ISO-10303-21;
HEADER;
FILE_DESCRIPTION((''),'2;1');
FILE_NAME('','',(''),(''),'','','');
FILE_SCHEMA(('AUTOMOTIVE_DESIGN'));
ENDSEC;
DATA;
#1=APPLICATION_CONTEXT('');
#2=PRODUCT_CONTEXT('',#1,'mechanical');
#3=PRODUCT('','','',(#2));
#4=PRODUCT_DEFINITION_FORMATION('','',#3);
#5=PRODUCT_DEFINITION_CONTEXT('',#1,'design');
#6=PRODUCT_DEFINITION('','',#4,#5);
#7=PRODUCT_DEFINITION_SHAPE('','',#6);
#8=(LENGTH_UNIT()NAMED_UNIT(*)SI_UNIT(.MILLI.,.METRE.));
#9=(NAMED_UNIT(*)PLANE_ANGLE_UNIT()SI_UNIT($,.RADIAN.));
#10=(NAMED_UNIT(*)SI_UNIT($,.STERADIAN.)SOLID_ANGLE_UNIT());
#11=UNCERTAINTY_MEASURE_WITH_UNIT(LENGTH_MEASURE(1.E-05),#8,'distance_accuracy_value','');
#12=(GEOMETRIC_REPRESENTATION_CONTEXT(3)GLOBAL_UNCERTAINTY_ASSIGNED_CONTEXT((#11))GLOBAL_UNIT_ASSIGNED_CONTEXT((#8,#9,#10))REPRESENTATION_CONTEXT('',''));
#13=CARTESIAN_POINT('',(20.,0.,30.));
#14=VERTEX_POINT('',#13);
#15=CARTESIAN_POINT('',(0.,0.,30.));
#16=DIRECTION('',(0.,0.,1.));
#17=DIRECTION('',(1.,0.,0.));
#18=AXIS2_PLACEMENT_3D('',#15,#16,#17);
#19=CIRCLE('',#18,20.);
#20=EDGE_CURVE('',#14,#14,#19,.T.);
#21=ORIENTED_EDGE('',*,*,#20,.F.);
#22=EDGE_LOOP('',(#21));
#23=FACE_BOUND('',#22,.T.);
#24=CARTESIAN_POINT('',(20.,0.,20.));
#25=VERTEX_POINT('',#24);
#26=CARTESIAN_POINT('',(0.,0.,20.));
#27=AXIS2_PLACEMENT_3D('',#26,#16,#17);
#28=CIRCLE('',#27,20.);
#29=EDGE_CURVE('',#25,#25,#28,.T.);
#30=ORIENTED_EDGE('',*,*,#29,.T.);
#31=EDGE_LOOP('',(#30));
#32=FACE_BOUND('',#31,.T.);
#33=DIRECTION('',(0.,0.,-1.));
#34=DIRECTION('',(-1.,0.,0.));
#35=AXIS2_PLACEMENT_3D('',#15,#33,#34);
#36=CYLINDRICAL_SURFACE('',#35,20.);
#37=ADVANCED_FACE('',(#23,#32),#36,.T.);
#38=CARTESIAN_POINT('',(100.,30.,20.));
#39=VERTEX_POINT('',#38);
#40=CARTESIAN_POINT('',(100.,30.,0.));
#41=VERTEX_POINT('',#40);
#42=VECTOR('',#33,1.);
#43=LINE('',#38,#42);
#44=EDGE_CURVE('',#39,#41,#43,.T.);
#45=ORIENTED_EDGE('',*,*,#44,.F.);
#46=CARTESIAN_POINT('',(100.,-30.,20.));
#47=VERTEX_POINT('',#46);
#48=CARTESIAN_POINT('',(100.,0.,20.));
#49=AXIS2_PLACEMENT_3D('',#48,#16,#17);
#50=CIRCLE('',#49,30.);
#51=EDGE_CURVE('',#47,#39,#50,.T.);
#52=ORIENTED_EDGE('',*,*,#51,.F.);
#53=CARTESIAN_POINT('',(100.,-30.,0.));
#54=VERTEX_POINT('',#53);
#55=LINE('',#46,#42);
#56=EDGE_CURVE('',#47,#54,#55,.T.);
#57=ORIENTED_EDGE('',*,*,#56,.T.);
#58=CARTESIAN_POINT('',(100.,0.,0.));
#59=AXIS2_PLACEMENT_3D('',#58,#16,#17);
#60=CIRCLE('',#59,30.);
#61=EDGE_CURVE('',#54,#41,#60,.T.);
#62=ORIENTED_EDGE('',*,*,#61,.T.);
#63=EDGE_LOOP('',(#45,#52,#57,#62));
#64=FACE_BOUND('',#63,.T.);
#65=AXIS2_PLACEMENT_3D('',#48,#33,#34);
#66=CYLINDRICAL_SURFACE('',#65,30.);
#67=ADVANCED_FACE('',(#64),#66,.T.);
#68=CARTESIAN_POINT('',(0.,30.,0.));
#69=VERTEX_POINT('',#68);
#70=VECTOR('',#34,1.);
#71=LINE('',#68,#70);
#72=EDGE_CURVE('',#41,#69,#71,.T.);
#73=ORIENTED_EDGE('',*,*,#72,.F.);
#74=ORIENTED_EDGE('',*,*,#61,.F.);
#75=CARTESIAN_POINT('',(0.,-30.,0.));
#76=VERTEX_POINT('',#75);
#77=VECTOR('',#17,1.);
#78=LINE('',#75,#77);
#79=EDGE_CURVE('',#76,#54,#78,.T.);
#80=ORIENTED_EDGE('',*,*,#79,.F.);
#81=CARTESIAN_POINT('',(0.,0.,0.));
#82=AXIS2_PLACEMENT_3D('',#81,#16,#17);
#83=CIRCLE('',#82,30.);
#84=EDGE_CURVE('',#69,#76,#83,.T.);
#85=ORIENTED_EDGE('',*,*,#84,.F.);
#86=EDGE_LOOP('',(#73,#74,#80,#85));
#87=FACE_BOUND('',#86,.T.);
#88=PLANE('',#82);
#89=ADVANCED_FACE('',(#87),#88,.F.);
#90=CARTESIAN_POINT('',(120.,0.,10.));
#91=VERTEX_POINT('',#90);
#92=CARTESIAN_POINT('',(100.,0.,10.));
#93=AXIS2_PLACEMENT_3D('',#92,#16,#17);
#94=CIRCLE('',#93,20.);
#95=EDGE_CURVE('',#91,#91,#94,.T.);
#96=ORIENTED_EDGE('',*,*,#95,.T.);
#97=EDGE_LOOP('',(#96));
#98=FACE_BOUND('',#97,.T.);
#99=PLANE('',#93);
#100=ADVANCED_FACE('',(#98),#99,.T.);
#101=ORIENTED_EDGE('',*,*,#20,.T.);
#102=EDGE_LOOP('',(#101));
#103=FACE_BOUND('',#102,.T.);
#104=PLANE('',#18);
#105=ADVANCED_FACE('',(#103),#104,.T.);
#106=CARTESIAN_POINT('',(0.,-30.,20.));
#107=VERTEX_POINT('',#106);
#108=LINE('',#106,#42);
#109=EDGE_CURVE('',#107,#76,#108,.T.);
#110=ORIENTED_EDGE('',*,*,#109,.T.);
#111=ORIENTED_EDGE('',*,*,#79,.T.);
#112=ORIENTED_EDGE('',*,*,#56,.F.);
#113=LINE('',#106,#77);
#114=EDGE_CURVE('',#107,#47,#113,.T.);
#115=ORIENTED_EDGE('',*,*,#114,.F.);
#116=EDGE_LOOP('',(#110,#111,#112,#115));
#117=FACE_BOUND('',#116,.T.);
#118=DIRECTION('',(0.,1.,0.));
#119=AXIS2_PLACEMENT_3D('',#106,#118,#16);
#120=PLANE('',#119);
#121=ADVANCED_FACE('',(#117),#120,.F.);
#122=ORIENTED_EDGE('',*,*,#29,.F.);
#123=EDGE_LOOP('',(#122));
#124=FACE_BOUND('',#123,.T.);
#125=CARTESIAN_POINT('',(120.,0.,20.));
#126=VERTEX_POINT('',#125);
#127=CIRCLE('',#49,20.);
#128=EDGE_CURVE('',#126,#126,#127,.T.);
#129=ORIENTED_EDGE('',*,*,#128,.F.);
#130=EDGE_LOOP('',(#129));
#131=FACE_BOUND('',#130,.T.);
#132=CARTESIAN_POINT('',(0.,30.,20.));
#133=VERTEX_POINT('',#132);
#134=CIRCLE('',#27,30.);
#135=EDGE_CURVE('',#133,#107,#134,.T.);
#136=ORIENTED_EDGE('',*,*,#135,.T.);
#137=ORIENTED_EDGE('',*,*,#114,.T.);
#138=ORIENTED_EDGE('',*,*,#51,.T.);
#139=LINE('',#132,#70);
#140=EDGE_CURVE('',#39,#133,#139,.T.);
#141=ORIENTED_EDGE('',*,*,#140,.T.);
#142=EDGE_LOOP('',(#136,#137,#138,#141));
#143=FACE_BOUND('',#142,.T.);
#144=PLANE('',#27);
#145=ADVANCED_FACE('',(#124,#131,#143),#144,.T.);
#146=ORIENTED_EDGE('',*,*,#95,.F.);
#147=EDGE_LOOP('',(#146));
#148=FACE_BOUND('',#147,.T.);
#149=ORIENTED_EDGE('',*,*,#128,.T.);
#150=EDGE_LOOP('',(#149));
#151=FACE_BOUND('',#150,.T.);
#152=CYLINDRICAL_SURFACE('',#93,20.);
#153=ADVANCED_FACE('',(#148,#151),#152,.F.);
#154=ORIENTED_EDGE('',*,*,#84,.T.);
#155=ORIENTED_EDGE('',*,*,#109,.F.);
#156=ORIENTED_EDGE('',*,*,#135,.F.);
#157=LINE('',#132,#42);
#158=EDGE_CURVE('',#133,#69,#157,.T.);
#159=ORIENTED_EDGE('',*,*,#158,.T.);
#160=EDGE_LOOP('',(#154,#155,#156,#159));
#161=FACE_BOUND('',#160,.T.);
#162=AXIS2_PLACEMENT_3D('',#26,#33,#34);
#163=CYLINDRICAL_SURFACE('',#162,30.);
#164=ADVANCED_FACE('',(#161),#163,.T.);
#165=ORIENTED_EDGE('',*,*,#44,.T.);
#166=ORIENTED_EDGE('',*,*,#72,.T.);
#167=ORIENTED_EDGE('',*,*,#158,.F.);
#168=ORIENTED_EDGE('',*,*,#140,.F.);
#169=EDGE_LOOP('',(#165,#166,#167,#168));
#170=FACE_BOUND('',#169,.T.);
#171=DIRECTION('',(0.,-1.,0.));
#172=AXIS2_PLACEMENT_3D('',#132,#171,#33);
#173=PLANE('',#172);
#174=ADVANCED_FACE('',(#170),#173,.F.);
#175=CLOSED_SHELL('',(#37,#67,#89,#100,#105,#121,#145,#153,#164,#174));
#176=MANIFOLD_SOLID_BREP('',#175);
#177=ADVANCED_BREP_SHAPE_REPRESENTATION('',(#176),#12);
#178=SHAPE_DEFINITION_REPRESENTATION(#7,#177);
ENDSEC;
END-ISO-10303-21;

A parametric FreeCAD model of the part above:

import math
import FreeCAD as App
import Part
import Sketcher
Q = App.Units.Quantity

doc = App.newDocument("Part")
body = doc.addObject("PartDesign::Body", "Body")

# Sketch on XY plane
sketch1 = doc.addObject("Sketcher::SketchObject", "Sketch")
body.addObject(sketch1)
sketch1.AttachmentSupport = (doc.XY_Plane, [""])
sketch1.MapMode = "FlatFace"
sketch1.addGeometry([
    Part.LineSegment(App.Vector(100, 30, 0), App.Vector(0, 30, 0)),
    Part.ArcOfCircle(Part.Circle(App.Vector(0, 0, 0), App.Vector(0, 0, 1), 30), math.radians(90), math.radians(270)),
    Part.LineSegment(App.Vector(0, -30, 0), App.Vector(100, -30, 0)),
    Part.ArcOfCircle(Part.Circle(App.Vector(100, 0, 0), App.Vector(0, 0, 1), 30), math.radians(-90), math.radians(90)),
], False)
sketch1.addConstraint([
    Sketcher.Constraint("Tangent", 0, 2, 1, 1),
    Sketcher.Constraint("Tangent", 1, 2, 2, 1),
    Sketcher.Constraint("Tangent", 2, 2, 3, 1),
    Sketcher.Constraint("Tangent", 3, 2, 0, 1),
    Sketcher.Constraint("Horizontal", 0),
    Sketcher.Constraint("Horizontal", 2),
    Sketcher.Constraint("Coincident", 1, 3, -1, 1),
    Sketcher.Constraint("Radius", 1, Q("30 mm")),
    Sketcher.Constraint("DistanceX", 0, 2, 0, 1, Q("100 mm")),
])
pad1 = doc.addObject("PartDesign::Pad", "Pad")
body.addObject(pad1)
pad1.Profile = sketch1
pad1.Length = 20

# Sketch on XY plane
sketch2 = doc.addObject("Sketcher::SketchObject", "Sketch001")
body.addObject(sketch2)
sketch2.AttachmentSupport = (doc.XY_Plane, [""])
sketch2.MapMode = "FlatFace"
sketch2.AttachmentOffset = App.Placement(App.Vector(0, 0, 20), App.Rotation())
sketch2.addGeometry(Part.Circle(App.Vector(0, 0, 0), App.Vector(0, 0, 1), 20), False)
sketch2.addConstraint([
    Sketcher.Constraint("Coincident", 0, 3, -1, 1),
    Sketcher.Constraint("Diameter", 0, Q("40 mm")),
])
pad2 = doc.addObject("PartDesign::Pad", "Pad001")
body.addObject(pad2)
pad2.Profile = sketch2
pad2.Length = 10

# Sketch on XY plane
sketch3 = doc.addObject("Sketcher::SketchObject", "Sketch002")
body.addObject(sketch3)
sketch3.AttachmentSupport = (doc.XY_Plane, [""])
sketch3.MapMode = "FlatFace"
sketch3.AttachmentOffset = App.Placement(App.Vector(0, 0, 20), App.Rotation())
sketch3.addGeometry(Part.Circle(App.Vector(100, 0, 0), App.Vector(0, 0, 1), 20), False)
sketch3.addConstraint([
    Sketcher.Constraint("PointOnObject", 0, 3, -1),
    Sketcher.Constraint("Diameter", 0, Q("40 mm")),
    Sketcher.Constraint("DistanceX", -1, 1, 0, 3, Q("100 mm")),
])
pocket1 = doc.addObject("PartDesign::Pocket", "Pocket")
body.addObject(pocket1)
pocket1.Profile = sketch3
pocket1.Length = 10

doc.recompute()
